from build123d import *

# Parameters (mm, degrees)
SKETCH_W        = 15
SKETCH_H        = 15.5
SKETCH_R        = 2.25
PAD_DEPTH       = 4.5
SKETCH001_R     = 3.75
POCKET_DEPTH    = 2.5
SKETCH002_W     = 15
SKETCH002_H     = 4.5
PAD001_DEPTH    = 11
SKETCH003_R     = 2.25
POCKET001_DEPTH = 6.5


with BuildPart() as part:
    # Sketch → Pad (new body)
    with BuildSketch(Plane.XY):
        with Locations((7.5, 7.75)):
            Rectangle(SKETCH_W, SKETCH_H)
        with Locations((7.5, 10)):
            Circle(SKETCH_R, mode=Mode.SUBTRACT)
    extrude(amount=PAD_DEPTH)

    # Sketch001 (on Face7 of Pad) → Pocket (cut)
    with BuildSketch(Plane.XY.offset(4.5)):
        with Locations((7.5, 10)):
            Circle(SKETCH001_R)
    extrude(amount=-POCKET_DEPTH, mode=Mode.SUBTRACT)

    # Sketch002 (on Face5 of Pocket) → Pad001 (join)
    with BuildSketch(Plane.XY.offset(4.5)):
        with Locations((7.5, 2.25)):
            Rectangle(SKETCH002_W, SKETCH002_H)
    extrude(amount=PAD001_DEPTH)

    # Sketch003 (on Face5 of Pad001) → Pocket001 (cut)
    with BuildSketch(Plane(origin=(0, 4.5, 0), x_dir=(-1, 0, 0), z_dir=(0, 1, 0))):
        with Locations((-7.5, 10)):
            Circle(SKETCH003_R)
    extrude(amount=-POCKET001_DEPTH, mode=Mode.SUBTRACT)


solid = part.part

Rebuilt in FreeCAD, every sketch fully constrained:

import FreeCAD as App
import Part
import Sketcher
from FreeCAD import Vector

doc = App.newDocument("Part")
params = doc.addObject("Spreadsheet::Sheet", "Params")
for row, (alias, value) in enumerate([
    ("sketch1_diameter", "4.5 mm"),
    ("sketch1_width", "15 mm"),
    ("sketch1_height", "15.5 mm"),
    ("pad1_length", "4.5 mm"),
    ("sketch2_diameter", "7.5 mm"),
    ("pocket1_length", "2.5 mm"),
    ("sketch3_width", "15 mm"),
    ("sketch3_height", "4.5 mm"),
    ("pad2_length", "11 mm"),
    ("sketch4_diameter", "4.5 mm"),
    ("pocket2_length", "6.5 mm"),
], start=1):
    params.set(f"A{row}", alias)
    params.set(f"B{row}", "=" + value)
    params.setAlias(f"B{row}", alias)

body = doc.addObject("PartDesign::Body", "Body")

sketch1 = body.newObject("Sketcher::SketchObject", "Sketch")
sketch1.AttachmentSupport = (doc.getObject("XY_Plane"), [""])
sketch1.MapMode = "FlatFace"
sketch1.addGeometry([
    Part.LineSegment(Vector(0, 15.5, 0), Vector(0, 0, 0)),
    Part.LineSegment(Vector(0, 0, 0), Vector(15, 0, 0)),
    Part.LineSegment(Vector(15, 0, 0), Vector(15, 15.5, 0)),
    Part.LineSegment(Vector(15, 15.5, 0), Vector(0, 15.5, 0)),
    Part.Circle(Vector(7.5, 10, 0), Vector(0, 0, 1), 2.2),
], False)
sketch1.addConstraint([
    Sketcher.Constraint("Coincident", 0, 2, 1, 1),
    Sketcher.Constraint("Coincident", 1, 2, 2, 1),
    Sketcher.Constraint("Coincident", 2, 2, 3, 1),
    Sketcher.Constraint("Coincident", 3, 2, 0, 1),
    Sketcher.Constraint("Vertical", 0),
    Sketcher.Constraint("Horizontal", 1),
    Sketcher.Constraint("Vertical", 2),
    Sketcher.Constraint("Horizontal", 3),
    Sketcher.Constraint("Coincident", 0, 2, -1, 1),
    Sketcher.Constraint("Diameter", 4, 4.5),
    Sketcher.Constraint("DistanceX", 1, 1, 1, 2, 15.0),
    Sketcher.Constraint("DistanceY", 0, 2, 0, 1, 15.5),
    Sketcher.Constraint("DistanceY", -1, 1, 4, 3, 10.0),
    Sketcher.Constraint("DistanceX", -1, 1, 4, 3, 7.5),
])
sketch1.setExpression("Constraints[9]", "Params.sketch1_diameter")
sketch1.setExpression("Constraints[10]", "Params.sketch1_width")
sketch1.setExpression("Constraints[11]", "Params.sketch1_height")
pad1 = body.newObject("PartDesign::Pad", "Pad")
pad1.Profile = sketch1
pad1.setExpression("Length", "Params.pad1_length")

sketch2 = body.newObject("Sketcher::SketchObject", "Sketch001")
sketch2.AttachmentSupport = (doc.getObject("XY_Plane"), [""])
sketch2.MapMode = "FlatFace"
sketch2.AttachmentOffset = App.Placement(Vector(0, 0, 4.5), App.Rotation())
sketch2.addGeometry(Part.Circle(Vector(7.5, 10, 0), Vector(0, 0, 1), 3.8), False)
sketch2.addConstraint([
    Sketcher.Constraint("Diameter", 0, 7.5),
    Sketcher.Constraint("DistanceY", -1, 1, 0, 3, 10.0),
    Sketcher.Constraint("DistanceX", -1, 1, 0, 3, 7.5),
])
sketch2.setExpression("Constraints[0]", "Params.sketch2_diameter")
pocket1 = body.newObject("PartDesign::Pocket", "Pocket")
pocket1.Profile = sketch2
pocket1.setExpression("Length", "Params.pocket1_length")

sketch3 = body.newObject("Sketcher::SketchObject", "Sketch002")
sketch3.AttachmentSupport = (doc.getObject("XY_Plane"), [""])
sketch3.MapMode = "FlatFace"
sketch3.AttachmentOffset = App.Placement(Vector(0, 0, 4.5), App.Rotation())
sketch3.addGeometry([
    Part.LineSegment(Vector(0, 4.5, 0), Vector(0, 0, 0)),
    Part.LineSegment(Vector(0, 0, 0), Vector(15, 0, 0)),
    Part.LineSegment(Vector(15, 0, 0), Vector(15, 4.5, 0)),
    Part.LineSegment(Vector(15, 4.5, 0), Vector(0, 4.5, 0)),
], False)
sketch3.addConstraint([
    Sketcher.Constraint("Coincident", 0, 2, 1, 1),
    Sketcher.Constraint("Coincident", 1, 2, 2, 1),
    Sketcher.Constraint("Coincident", 2, 2, 3, 1),
    Sketcher.Constraint("Coincident", 3, 2, 0, 1),
    Sketcher.Constraint("Vertical", 0),
    Sketcher.Constraint("Horizontal", 1),
    Sketcher.Constraint("Vertical", 2),
    Sketcher.Constraint("Horizontal", 3),
    Sketcher.Constraint("Coincident", 0, 2, -1, 1),
    Sketcher.Constraint("DistanceX", 1, 1, 1, 2, 15.0),
    Sketcher.Constraint("DistanceY", 0, 2, 0, 1, 4.5),
])
sketch3.setExpression("Constraints[9]", "Params.sketch3_width")
sketch3.setExpression("Constraints[10]", "Params.sketch3_height")
pad2 = body.newObject("PartDesign::Pad", "Pad001")
pad2.Profile = sketch3
pad2.setExpression("Length", "Params.pad2_length")

sketch4 = body.newObject("Sketcher::SketchObject", "Sketch003")
sketch4.AttachmentSupport = (doc.getObject("XZ_Plane"), [""])
sketch4.MapMode = "FlatFace"
sketch4.AttachmentOffset = App.Placement(Vector(0, 0, -4.5), App.Rotation())
sketch4.addGeometry(Part.Circle(Vector(7.5, 10, 0), Vector(0, 0, 1), 2.2), False)
sketch4.addConstraint([
    Sketcher.Constraint("Diameter", 0, 4.5),
    Sketcher.Constraint("DistanceY", -1, 1, 0, 3, 10.0),
    Sketcher.Constraint("DistanceX", -1, 1, 0, 3, 7.5),
])
sketch4.setExpression("Constraints[0]", "Params.sketch4_diameter")
pocket2 = body.newObject("PartDesign::Pocket", "Pocket001")
pocket2.Profile = sketch4
pocket2.setExpression("Length", "Params.pocket2_length")
pocket2.Reversed = True

doc.recompute()
